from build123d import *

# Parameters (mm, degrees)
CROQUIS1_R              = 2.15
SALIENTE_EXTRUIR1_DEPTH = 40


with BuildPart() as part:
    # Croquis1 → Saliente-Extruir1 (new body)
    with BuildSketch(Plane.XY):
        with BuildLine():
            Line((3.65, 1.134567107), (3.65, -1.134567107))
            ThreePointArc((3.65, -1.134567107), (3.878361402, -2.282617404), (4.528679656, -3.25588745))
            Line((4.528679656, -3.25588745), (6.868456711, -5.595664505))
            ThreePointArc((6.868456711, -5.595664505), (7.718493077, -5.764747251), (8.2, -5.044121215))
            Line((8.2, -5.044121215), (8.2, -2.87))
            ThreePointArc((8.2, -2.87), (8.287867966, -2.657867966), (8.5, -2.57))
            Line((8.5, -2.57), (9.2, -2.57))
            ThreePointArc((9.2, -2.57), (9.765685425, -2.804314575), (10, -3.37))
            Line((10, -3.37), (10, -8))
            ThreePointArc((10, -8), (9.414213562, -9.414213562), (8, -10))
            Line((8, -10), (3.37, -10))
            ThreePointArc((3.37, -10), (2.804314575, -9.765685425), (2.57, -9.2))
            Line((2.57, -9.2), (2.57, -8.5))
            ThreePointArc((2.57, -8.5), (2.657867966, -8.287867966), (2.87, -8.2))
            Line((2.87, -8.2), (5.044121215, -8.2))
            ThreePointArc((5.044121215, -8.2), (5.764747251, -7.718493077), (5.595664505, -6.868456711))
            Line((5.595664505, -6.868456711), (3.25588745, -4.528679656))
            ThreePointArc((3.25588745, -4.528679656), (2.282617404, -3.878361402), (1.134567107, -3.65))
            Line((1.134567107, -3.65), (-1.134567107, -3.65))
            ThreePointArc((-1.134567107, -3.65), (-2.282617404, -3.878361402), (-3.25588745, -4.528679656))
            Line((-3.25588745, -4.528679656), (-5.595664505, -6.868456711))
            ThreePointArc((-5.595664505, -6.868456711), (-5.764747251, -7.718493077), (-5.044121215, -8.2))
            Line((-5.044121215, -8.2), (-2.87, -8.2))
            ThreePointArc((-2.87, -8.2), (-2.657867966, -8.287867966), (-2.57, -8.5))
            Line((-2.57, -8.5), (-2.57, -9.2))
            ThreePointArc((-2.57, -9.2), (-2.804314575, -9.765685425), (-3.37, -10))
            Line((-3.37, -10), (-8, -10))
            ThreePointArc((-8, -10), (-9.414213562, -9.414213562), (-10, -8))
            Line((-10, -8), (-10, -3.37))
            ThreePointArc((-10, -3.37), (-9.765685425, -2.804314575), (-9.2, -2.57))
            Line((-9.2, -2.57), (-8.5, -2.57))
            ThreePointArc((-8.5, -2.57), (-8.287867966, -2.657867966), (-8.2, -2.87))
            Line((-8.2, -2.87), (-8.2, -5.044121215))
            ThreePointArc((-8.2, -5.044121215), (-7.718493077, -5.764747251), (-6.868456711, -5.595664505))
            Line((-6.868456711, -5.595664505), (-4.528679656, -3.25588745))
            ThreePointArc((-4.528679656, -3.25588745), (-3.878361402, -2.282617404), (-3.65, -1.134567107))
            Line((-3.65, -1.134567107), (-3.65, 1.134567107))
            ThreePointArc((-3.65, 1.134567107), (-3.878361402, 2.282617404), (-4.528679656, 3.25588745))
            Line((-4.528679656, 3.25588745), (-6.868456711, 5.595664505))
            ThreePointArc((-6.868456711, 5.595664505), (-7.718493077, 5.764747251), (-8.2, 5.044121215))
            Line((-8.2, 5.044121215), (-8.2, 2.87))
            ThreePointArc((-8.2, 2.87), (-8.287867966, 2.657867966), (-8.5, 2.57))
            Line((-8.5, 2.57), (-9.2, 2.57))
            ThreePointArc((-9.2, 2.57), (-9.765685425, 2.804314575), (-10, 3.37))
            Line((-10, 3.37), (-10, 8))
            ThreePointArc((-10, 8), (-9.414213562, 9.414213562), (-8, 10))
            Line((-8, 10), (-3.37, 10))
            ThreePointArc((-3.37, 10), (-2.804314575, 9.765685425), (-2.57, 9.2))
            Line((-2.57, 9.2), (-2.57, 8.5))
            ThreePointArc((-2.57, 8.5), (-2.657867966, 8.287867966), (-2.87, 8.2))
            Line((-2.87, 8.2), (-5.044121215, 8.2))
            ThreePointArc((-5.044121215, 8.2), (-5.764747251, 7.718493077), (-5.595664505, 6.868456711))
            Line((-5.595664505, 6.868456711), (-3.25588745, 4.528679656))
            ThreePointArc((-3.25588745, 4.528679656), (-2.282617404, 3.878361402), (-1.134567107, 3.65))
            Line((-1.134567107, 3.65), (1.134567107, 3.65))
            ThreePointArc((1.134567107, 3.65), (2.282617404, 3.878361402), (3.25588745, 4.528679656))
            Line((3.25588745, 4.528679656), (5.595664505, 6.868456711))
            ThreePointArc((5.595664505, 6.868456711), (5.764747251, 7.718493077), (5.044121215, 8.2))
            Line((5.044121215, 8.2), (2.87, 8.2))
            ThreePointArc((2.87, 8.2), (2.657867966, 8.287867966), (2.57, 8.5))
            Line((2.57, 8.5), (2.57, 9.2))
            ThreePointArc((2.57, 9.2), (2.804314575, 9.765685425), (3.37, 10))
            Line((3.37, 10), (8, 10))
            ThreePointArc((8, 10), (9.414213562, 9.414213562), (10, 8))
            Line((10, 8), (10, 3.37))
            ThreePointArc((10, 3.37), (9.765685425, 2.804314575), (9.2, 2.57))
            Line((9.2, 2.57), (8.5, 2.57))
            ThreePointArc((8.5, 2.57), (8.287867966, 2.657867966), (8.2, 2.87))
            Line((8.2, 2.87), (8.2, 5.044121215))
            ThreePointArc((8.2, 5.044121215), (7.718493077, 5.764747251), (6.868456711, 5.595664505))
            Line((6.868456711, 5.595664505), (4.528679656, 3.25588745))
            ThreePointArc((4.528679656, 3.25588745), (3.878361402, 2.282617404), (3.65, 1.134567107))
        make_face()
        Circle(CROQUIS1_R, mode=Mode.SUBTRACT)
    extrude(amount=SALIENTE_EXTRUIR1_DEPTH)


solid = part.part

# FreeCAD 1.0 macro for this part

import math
import FreeCAD as App
import Part
import Sketcher
Q = App.Units.Quantity

doc = App.newDocument("Part")
params = doc.addObject("Spreadsheet::Sheet", "Params")
for row, (alias, value) in enumerate([
    ("sketch1_radius", "3 mm"),
    ("sketch1_radius2", "2 mm"),
    ("sketch1_diameter", "4.3 mm"),
    ("sketch1_radius3", "0.3 mm"),
    ("sketch1_radius4", "0.8 mm"),
    ("pad1_length", "40 mm"),
], start=1):
    params.set(f"A{row}", alias)
    params.set(f"B{row}", "=" + value)
    params.setAlias(f"B{row}", alias)

body = doc.addObject("PartDesign::Body", "Body")

sketch1 = body.newObject("Sketcher::SketchObject", "Sketch")
sketch1.AttachmentSupport = (doc.getObject("XY_Plane"), [""])
sketch1.MapMode = "FlatFace"
sketch1.addGeometry([
    Part.LineSegment(App.Vector(3.65, -1.134567, 0), App.Vector(3.65, 1.134567, 0)),
    Part.ArcOfCircle(Part.Circle(App.Vector(6.65, 1.134567, 0), App.Vector(0, 0, 1), 3), math.radians(135), math.radians(180)),
    Part.LineSegment(App.Vector(4.52868, 3.255887, 0), App.Vector(6.868457, 5.595665, 0)),
    Part.ArcOfCircle(Part.Circle(App.Vector(7.42, 5.044121, 0), App.Vector(0, 0, 1), 0.78), math.radians(0), math.radians(135)),
    Part.LineSegment(App.Vector(8.2, 5.044121, 0), App.Vector(8.2, 2.87, 0)),
    Part.ArcOfCircle(Part.Circle(App.Vector(8.5, 2.87, 0), App.Vector(0, 0, 1), 0.3), math.radians(-180), math.radians(-90)),
    Part.LineSegment(App.Vector(8.5, 2.57, 0), App.Vector(9.2, 2.57, 0)),
    Part.ArcOfCircle(Part.Circle(App.Vector(9.2, 3.37, 0), App.Vector(0, 0, 1), 0.8), math.radians(-90), math.radians(0)),
    Part.LineSegment(App.Vector(10, 3.37, 0), App.Vector(10, 8, 0)),
    Part.ArcOfCircle(Part.Circle(App.Vector(8, 8, 0), App.Vector(0, 0, 1), 2), math.radians(0), math.radians(90)),
    Part.LineSegment(App.Vector(8, 10, 0), App.Vector(3.37, 10, 0)),
    Part.ArcOfCircle(Part.Circle(App.Vector(3.37, 9.2, 0), App.Vector(0, 0, 1), 0.8), math.radians(90), math.radians(180)),
    Part.LineSegment(App.Vector(2.57, 9.2, 0), App.Vector(2.57, 8.5, 0)),
    Part.ArcOfCircle(Part.Circle(App.Vector(2.87, 8.5, 0), App.Vector(0, 0, 1), 0.3), math.radians(-180), math.radians(-90)),
    Part.LineSegment(App.Vector(2.87, 8.2, 0), App.Vector(5.044121, 8.2, 0)),
    Part.ArcOfCircle(Part.Circle(App.Vector(5.044121, 7.42, 0), App.Vector(0, 0, 1), 0.78), math.radians(-45), math.radians(90)),
    Part.LineSegment(App.Vector(5.595665, 6.868457, 0), App.Vector(3.255887, 4.52868, 0)),
    Part.ArcOfCircle(Part.Circle(App.Vector(1.134567, 6.65, 0), App.Vector(0, 0, 1), 3), math.radians(-90), math.radians(-45)),
    Part.LineSegment(App.Vector(1.134567, 3.65, 0), App.Vector(-1.134567, 3.65, 0)),
    Part.ArcOfCircle(Part.Circle(App.Vector(-1.134567, 6.65, 0), App.Vector(0, 0, 1), 3), math.radians(-135), math.radians(-90)),
    Part.LineSegment(App.Vector(-3.255887, 4.52868, 0), App.Vector(-5.595665, 6.868457, 0)),
    Part.ArcOfCircle(Part.Circle(App.Vector(-5.044121, 7.42, 0), App.Vector(0, 0, 1), 0.78), math.radians(90), math.radians(225)),
    Part.LineSegment(App.Vector(-5.044121, 8.2, 0), App.Vector(-2.87, 8.2, 0)),
    Part.ArcOfCircle(Part.Circle(App.Vector(-2.87, 8.5, 0), App.Vector(0, 0, 1), 0.3), math.radians(-90), math.radians(0)),
    Part.LineSegment(App.Vector(-2.57, 8.5, 0), App.Vector(-2.57, 9.2, 0)),
    Part.ArcOfCircle(Part.Circle(App.Vector(-3.37, 9.2, 0), App.Vector(0, 0, 1), 0.8), math.radians(0), math.radians(90)),
    Part.LineSegment(App.Vector(-3.37, 10, 0), App.Vector(-8, 10, 0)),
    Part.ArcOfCircle(Part.Circle(App.Vector(-8, 8, 0), App.Vector(0, 0, 1), 2), math.radians(90), math.radians(180)),
    Part.LineSegment(App.Vector(-10, 8, 0), App.Vector(-10, 3.37, 0)),
    Part.ArcOfCircle(Part.Circle(App.Vector(-9.2, 3.37, 0), App.Vector(0, 0, 1), 0.8), math.radians(180), math.radians(270)),
    Part.LineSegment(App.Vector(-9.2, 2.57, 0), App.Vector(-8.5, 2.57, 0)),
    Part.ArcOfCircle(Part.Circle(App.Vector(-8.5, 2.87, 0), App.Vector(0, 0, 1), 0.3), math.radians(-90), math.radians(0)),
    Part.LineSegment(App.Vector(-8.2, 2.87, 0), App.Vector(-8.2, 5.044121, 0)),
    Part.ArcOfCircle(Part.Circle(App.Vector(-7.42, 5.044121, 0), App.Vector(0, 0, 1), 0.78), math.radians(45), math.radians(180)),
    Part.LineSegment(App.Vector(-6.868457, 5.595665, 0), App.Vector(-4.52868, 3.255887, 0)),
    Part.ArcOfCircle(Part.Circle(App.Vector(-6.65, 1.134567, 0), App.Vector(0, 0, 1), 3), math.radians(0), math.radians(45)),
    Part.LineSegment(App.Vector(-3.65, 1.134567, 0), App.Vector(-3.65, -1.134567, 0)),
    Part.ArcOfCircle(Part.Circle(App.Vector(-6.65, -1.134567, 0), App.Vector(0, 0, 1), 3), math.radians(-45), math.radians(0)),
    Part.LineSegment(App.Vector(-4.52868, -3.255887, 0), App.Vector(-6.868457, -5.595665, 0)),
    Part.ArcOfCircle(Part.Circle(App.Vector(-7.42, -5.044121, 0), App.Vector(0, 0, 1), 0.78), math.radians(180), math.radians(315)),
    Part.LineSegment(App.Vector(-8.2, -5.044121, 0), App.Vector(-8.2, -2.87, 0)),
    Part.ArcOfCircle(Part.Circle(App.Vector(-8.5, -2.87, 0), App.Vector(0, 0, 1), 0.3), math.radians(0), math.radians(90)),
    Part.LineSegment(App.Vector(-8.5, -2.57, 0), App.Vector(-9.2, -2.57, 0)),
    Part.ArcOfCircle(Part.Circle(App.Vector(-9.2, -3.37, 0), App.Vector(0, 0, 1), 0.8), math.radians(90), math.radians(180)),
    Part.LineSegment(App.Vector(-10, -3.37, 0), App.Vector(-10, -8, 0)),
    Part.ArcOfCircle(Part.Circle(App.Vector(-8, -8, 0), App.Vector(0, 0, 1), 2), math.radians(-180), math.radians(-90)),
    Part.LineSegment(App.Vector(-8, -10, 0), App.Vector(-3.37, -10, 0)),
    Part.ArcOfCircle(Part.Circle(App.Vector(-3.37, -9.2, 0), App.Vector(0, 0, 1), 0.8), math.radians(-90), math.radians(0)),
    Part.LineSegment(App.Vector(-2.57, -9.2, 0), App.Vector(-2.57, -8.5, 0)),
    Part.ArcOfCircle(Part.Circle(App.Vector(-2.87, -8.5, 0), App.Vector(0, 0, 1), 0.3), math.radians(0), math.radians(90)),
    Part.LineSegment(App.Vector(-2.87, -8.2, 0), App.Vector(-5.044121, -8.2, 0)),
    Part.ArcOfCircle(Part.Circle(App.Vector(-5.044121, -7.42, 0), App.Vector(0, 0, 1), 0.78), math.radians(135), math.radians(270)),
    Part.LineSegment(App.Vector(-5.595665, -6.868457, 0), App.Vector(-3.255887, -4.52868, 0)),
    Part.ArcOfCircle(Part.Circle(App.Vector(-1.134567, -6.65, 0), App.Vector(0, 0, 1), 3), math.radians(90), math.radians(135)),
    Part.LineSegment(App.Vector(-1.134567, -3.65, 0), App.Vector(1.134567, -3.65, 0)),
    Part.ArcOfCircle(Part.Circle(App.Vector(1.134567, -6.65, 0), App.Vector(0, 0, 1), 3), math.radians(45), math.radians(90)),
    Part.LineSegment(App.Vector(3.255887, -4.52868, 0), App.Vector(5.595665, -6.868457, 0)),
    Part.ArcOfCircle(Part.Circle(App.Vector(5.044121, -7.42, 0), App.Vector(0, 0, 1), 0.78), math.radians(-90), math.radians(45)),
    Part.LineSegment(App.Vector(5.044121, -8.2, 0), App.Vector(2.87, -8.2, 0)),
    Part.ArcOfCircle(Part.Circle(App.Vector(2.87, -8.5, 0), App.Vector(0, 0, 1), 0.3), math.radians(90), math.radians(180)),
    Part.LineSegment(App.Vector(2.57, -8.5, 0), App.Vector(2.57, -9.2, 0)),
    Part.ArcOfCircle(Part.Circle(App.Vector(3.37, -9.2, 0), App.Vector(0, 0, 1), 0.8), math.radians(180), math.radians(270)),
    Part.LineSegment(App.Vector(3.37, -10, 0), App.Vector(8, -10, 0)),
    Part.ArcOfCircle(Part.Circle(App.Vector(8, -8, 0), App.Vector(0, 0, 1), 2), math.radians(-90), math.radians(0)),
    Part.LineSegment(App.Vector(10, -8, 0), App.Vector(10, -3.37, 0)),
    Part.ArcOfCircle(Part.Circle(App.Vector(9.2, -3.37, 0), App.Vector(0, 0, 1), 0.8), math.radians(0), math.radians(90)),
    Part.LineSegment(App.Vector(9.2, -2.57, 0), App.Vector(8.5, -2.57, 0)),
    Part.ArcOfCircle(Part.Circle(App.Vector(8.5, -2.87, 0), App.Vector(0, 0, 1), 0.3), math.radians(90), math.radians(180)),
    Part.LineSegment(App.Vector(8.2, -2.87, 0), App.Vector(8.2, -5.044121, 0)),
    Part.ArcOfCircle(Part.Circle(App.Vector(7.42, -5.044121, 0), App.Vector(0, 0, 1), 0.78), math.radians(-135), math.radians(0)),
    Part.LineSegment(App.Vector(6.868457, -5.595665, 0), App.Vector(4.52868, -3.255887, 0)),
    Part.ArcOfCircle(Part.Circle(App.Vector(6.65, -1.134567, 0), App.Vector(0, 0, 1), 3), math.radians(180), math.radians(225)),
    Part.Circle(App.Vector(0, 0, 0), App.Vector(0, 0, 1), 2.15),
], False)
sketch1.addConstraint([
    Sketcher.Constraint("Tangent", 0, 2, 1, 2),
    Sketcher.Constraint("Tangent", 1, 1, 2, 1),
    Sketcher.Constraint("Tangent", 2, 2, 3, 2),
    Sketcher.Constraint("Tangent", 3, 1, 4, 1),
    Sketcher.Constraint("Tangent", 4, 2, 5, 1),
    Sketcher.Constraint("Tangent", 5, 2, 6, 1),
    Sketcher.Constraint("Tangent", 6, 2, 7, 1),
    Sketcher.Constraint("Tangent", 7, 2, 8, 1),
    Sketcher.Constraint("Tangent", 8, 2, 9, 1),
    Sketcher.Constraint("Tangent", 9, 2, 10, 1),
    Sketcher.Constraint("Tangent", 10, 2, 11, 1),
    Sketcher.Constraint("Tangent", 11, 2, 12, 1),
    Sketcher.Constraint("Tangent", 12, 2, 13, 1),
    Sketcher.Constraint("Tangent", 13, 2, 14, 1),
    Sketcher.Constraint("Tangent", 14, 2, 15, 2),
    Sketcher.Constraint("Tangent", 15, 1, 16, 1),
    Sketcher.Constraint("Tangent", 16, 2, 17, 2),
    Sketcher.Constraint("Tangent", 17, 1, 18, 1),
    Sketcher.Constraint("Tangent", 18, 2, 19, 2),
    Sketcher.Constraint("Tangent", 19, 1, 20, 1),
    Sketcher.Constraint("Tangent", 20, 2, 21, 2),
    Sketcher.Constraint("Tangent", 21, 1, 22, 1),
    Sketcher.Constraint("Tangent", 22, 2, 23, 1),
    Sketcher.Constraint("Tangent", 23, 2, 24, 1),
    Sketcher.Constraint("Tangent", 24, 2, 25, 1),
    Sketcher.Constraint("Tangent", 25, 2, 26, 1),
    Sketcher.Constraint("Tangent", 26, 2, 27, 1),
    Sketcher.Constraint("Tangent", 27, 2, 28, 1),
    Sketcher.Constraint("Tangent", 28, 2, 29, 1),
    Sketcher.Constraint("Tangent", 29, 2, 30, 1),
    Sketcher.Constraint("Tangent", 30, 2, 31, 1),
    Sketcher.Constraint("Tangent", 31, 2, 32, 1),
    Sketcher.Constraint("Tangent", 32, 2, 33, 2),
    Sketcher.Constraint("Tangent", 33, 1, 34, 1),
    Sketcher.Constraint("Tangent", 34, 2, 35, 2),
    Sketcher.Constraint("Tangent", 35, 1, 36, 1),
    Sketcher.Constraint("Tangent", 36, 2, 37, 2),
    Sketcher.Constraint("Tangent", 37, 1, 38, 1),
    Sketcher.Constraint("Tangent", 38, 2, 39, 2),
    Sketcher.Constraint("Tangent", 39, 1, 40, 1),
    Sketcher.Constraint("Tangent", 40, 2, 41, 1),
    Sketcher.Constraint("Tangent", 41, 2, 42, 1),
    Sketcher.Constraint("Tangent", 42, 2, 43, 1),
    Sketcher.Constraint("Tangent", 43, 2, 44, 1),
    Sketcher.Constraint("Tangent", 44, 2, 45, 1),
    Sketcher.Constraint("Tangent", 45, 2, 46, 1),
    Sketcher.Constraint("Tangent", 46, 2, 47, 1),
    Sketcher.Constraint("Tangent", 47, 2, 48, 1),
    Sketcher.Constraint("Tangent", 48, 2, 49, 1),
    Sketcher.Constraint("Tangent", 49, 2, 50, 1),
    Sketcher.Constraint("Tangent", 50, 2, 51, 2),
    Sketcher.Constraint("Tangent", 51, 1, 52, 1),
    Sketcher.Constraint("Tangent", 52, 2, 53, 2),
    Sketcher.Constraint("Tangent", 53, 1, 54, 1),
    Sketcher.Constraint("Tangent", 54, 2, 55, 2),
    Sketcher.Constraint("Tangent", 55, 1, 56, 1),
    Sketcher.Constraint("Tangent", 56, 2, 57, 2),
    Sketcher.Constraint("Tangent", 57, 1, 58, 1),
    Sketcher.Constraint("Tangent", 58, 2, 59, 1),
    Sketcher.Constraint("Tangent", 59, 2, 60, 1),
    Sketcher.Constraint("Tangent", 60, 2, 61, 1),
    Sketcher.Constraint("Tangent", 61, 2, 62, 1),
    Sketcher.Constraint("Tangent", 62, 2, 63, 1),
    Sketcher.Constraint("Tangent", 63, 2, 64, 1),
    Sketcher.Constraint("Tangent", 64, 2, 65, 1),
    Sketcher.Constraint("Tangent", 65, 2, 66, 1),
    Sketcher.Constraint("Tangent", 66, 2, 67, 1),
    Sketcher.Constraint("Tangent", 67, 2, 68, 1),
    Sketcher.Constraint("Tangent", 68, 2, 69, 2),
    Sketcher.Constraint("Tangent", 69, 1, 70, 1),
    Sketcher.Constraint("Tangent", 70, 2, 71, 2),
    Sketcher.Constraint("Tangent", 71, 1, 0, 1),
    Sketcher.Constraint("Vertical", 0),
    Sketcher.Constraint("Vertical", 4),
    Sketcher.Constraint("Horizontal", 6),
    Sketcher.Constraint("Vertical", 8),
    Sketcher.Constraint("Horizontal", 10),
    Sketcher.Constraint("Vertical", 12),
    Sketcher.Constraint("Horizontal", 14),
    Sketcher.Constraint("Horizontal", 18),
    Sketcher.Constraint("Horizontal", 22),
    Sketcher.Constraint("Vertical", 24),
    Sketcher.Constraint("Horizontal", 26),
    Sketcher.Constraint("Vertical", 28),
    Sketcher.Constraint("Horizontal", 30),
    Sketcher.Constraint("Vertical", 32),
    Sketcher.Constraint("Vertical", 36),
    Sketcher.Constraint("Vertical", 40),
    Sketcher.Constraint("Horizontal", 42),
    Sketcher.Constraint("Vertical", 44),
    Sketcher.Constraint("Horizontal", 46),
    Sketcher.Constraint("Vertical", 48),
    Sketcher.Constraint("Horizontal", 50),
    Sketcher.Constraint("Horizontal", 54),
    Sketcher.Constraint("Horizontal", 58),
    Sketcher.Constraint("Vertical", 60),
    Sketcher.Constraint("Horizontal", 62),
    Sketcher.Constraint("Vertical", 64),
    Sketcher.Constraint("Horizontal", 66),
    Sketcher.Constraint("Vertical", 68),
    Sketcher.Constraint("Coincident", 72, 3, -1, 1),
    Sketcher.Constraint("Equal", 7, 11),
    Sketcher.Constraint("Equal", 5, 13),
    Sketcher.Constraint("Equal", 3, 15),
    Sketcher.Constraint("Equal", 1, 17),
    Sketcher.Constraint("Equal", 17, 19),
    Sketcher.Constraint("Equal", 15, 21),
    Sketcher.Constraint("Equal", 13, 23),
    Sketcher.Constraint("Equal", 11, 25),
    Sketcher.Constraint("Equal", 9, 27),
    Sketcher.Constraint("Equal", 25, 29),
    Sketcher.Constraint("Equal", 23, 31),
    Sketcher.Constraint("Equal", 21, 33),
    Sketcher.Constraint("Equal", 19, 35),
    Sketcher.Constraint("Equal", 35, 37),
    Sketcher.Constraint("Equal", 33, 39),
    Sketcher.Constraint("Equal", 31, 41),
    Sketcher.Constraint("Equal", 29, 43),
    Sketcher.Constraint("Equal", 27, 45),
    Sketcher.Constraint("Equal", 43, 47),
    Sketcher.Constraint("Equal", 41, 49),
    Sketcher.Constraint("Equal", 39, 51),
    Sketcher.Constraint("Equal", 37, 53),
    Sketcher.Constraint("Equal", 53, 55),
    Sketcher.Constraint("Equal", 51, 57),
    Sketcher.Constraint("Equal", 49, 59),
    Sketcher.Constraint("Equal", 47, 61),
    Sketcher.Constraint("Equal", 45, 63),
    Sketcher.Constraint("Equal", 61, 65),
    Sketcher.Constraint("Equal", 59, 67),
    Sketcher.Constraint("Equal", 57, 69),
    Sketcher.Constraint("Equal", 55, 71),
    Sketcher.Constraint("Symmetric", 1, 3, 37, 3, -1, 1),
    Sketcher.Constraint("Symmetric", 3, 3, 39, 3, -1, 1),
    Sketcher.Constraint("Symmetric", 7, 3, 43, 3, -1, 1),
    Sketcher.Constraint("Symmetric", 11, 3, 47, 3, -1, 1),
    Sketcher.Constraint("Symmetric", 15, 3, 51, 3, -1, 1),
    Sketcher.Constraint("Symmetric", 17, 3, 53, 3, -1, 1),
    Sketcher.Constraint("Symmetric", 21, 3, 57, 3, -1, 1),
    Sketcher.Constraint("Symmetric", 25, 3, 61, 3, -1, 1),
    Sketcher.Constraint("Symmetric", 29, 3, 65, 3, -1, 1),
    Sketcher.Constraint("Symmetric", 33, 3, 69, 3, -1, 1),
    Sketcher.Constraint("Symmetric", 15, 3, 21, 3, -2),
    Sketcher.Constraint("Symmetric", 11, 3, 25, 3, -2),
    Sketcher.Constraint("Symmetric", 7, 3, 29, 3, -2),
    Sketcher.Constraint("Symmetric", 3, 3, 33, 3, -2),
    Sketcher.Constraint("Parallel", 2, 16),
    Sketcher.Constraint("Perpendicular", 16, 20),
    Sketcher.Constraint("Parallel", 20, 34),
    Sketcher.Constraint("Perpendicular", 52, 56),
    Sketcher.Constraint("Parallel", 56, 70),
    Sketcher.Constraint("Horizontal", 1, 3, 35, 3),
    Sketcher.Constraint("Equal", 54, 0),
    Sketcher.Constraint("Equal", 58, 4),
    Sketcher.Constraint("Equal", 62, 8),
    Sketcher.Constraint("Equal", 66, 12),
    Sketcher.Constraint("Equal", 2, 16),
    Sketcher.Constraint("Radius", 1, Q("3 mm")),
    Sketcher.Constraint("Radius", 9, Q("2 mm")),
    Sketcher.Constraint("Diameter", 72, Q("4.3 mm")),
    Sketcher.Constraint("Radius", 5, Q("0.3 mm")),
    Sketcher.Constraint("Radius", 7, Q("0.8 mm")),
    Sketcher.Constraint("Radius", 3, Q("0.78 mm")),
    Sketcher.Constraint("DistanceX", 6, 1, 6, 2, Q("0.7 mm")),
    Sketcher.Constraint("DistanceX", -1, 1, 9, 3, Q("8 mm")),
    Sketcher.Constraint("DistanceX", 10, 2, 10, 1, Q("4.63 mm")),
    Sketcher.Constraint("DistanceX", -1, 1, 1, 3, Q("6.65 mm")),
    Sketcher.Constraint("DistanceX", 14, 1, 14, 2, Q("2.174121 mm")),
])
sketch1.setExpression("Constraints[157]", "Params.sketch1_radius")
sketch1.setExpression("Constraints[158]", "Params.sketch1_radius2")
sketch1.setExpression("Constraints[159]", "Params.sketch1_diameter")
sketch1.setExpression("Constraints[160]", "Params.sketch1_radius3")
sketch1.setExpression("Constraints[161]", "Params.sketch1_radius4")
pad1 = body.newObject("PartDesign::Pad", "Pad")
pad1.Profile = sketch1
pad1.setExpression("Length", "Params.pad1_length")

doc.recompute()
